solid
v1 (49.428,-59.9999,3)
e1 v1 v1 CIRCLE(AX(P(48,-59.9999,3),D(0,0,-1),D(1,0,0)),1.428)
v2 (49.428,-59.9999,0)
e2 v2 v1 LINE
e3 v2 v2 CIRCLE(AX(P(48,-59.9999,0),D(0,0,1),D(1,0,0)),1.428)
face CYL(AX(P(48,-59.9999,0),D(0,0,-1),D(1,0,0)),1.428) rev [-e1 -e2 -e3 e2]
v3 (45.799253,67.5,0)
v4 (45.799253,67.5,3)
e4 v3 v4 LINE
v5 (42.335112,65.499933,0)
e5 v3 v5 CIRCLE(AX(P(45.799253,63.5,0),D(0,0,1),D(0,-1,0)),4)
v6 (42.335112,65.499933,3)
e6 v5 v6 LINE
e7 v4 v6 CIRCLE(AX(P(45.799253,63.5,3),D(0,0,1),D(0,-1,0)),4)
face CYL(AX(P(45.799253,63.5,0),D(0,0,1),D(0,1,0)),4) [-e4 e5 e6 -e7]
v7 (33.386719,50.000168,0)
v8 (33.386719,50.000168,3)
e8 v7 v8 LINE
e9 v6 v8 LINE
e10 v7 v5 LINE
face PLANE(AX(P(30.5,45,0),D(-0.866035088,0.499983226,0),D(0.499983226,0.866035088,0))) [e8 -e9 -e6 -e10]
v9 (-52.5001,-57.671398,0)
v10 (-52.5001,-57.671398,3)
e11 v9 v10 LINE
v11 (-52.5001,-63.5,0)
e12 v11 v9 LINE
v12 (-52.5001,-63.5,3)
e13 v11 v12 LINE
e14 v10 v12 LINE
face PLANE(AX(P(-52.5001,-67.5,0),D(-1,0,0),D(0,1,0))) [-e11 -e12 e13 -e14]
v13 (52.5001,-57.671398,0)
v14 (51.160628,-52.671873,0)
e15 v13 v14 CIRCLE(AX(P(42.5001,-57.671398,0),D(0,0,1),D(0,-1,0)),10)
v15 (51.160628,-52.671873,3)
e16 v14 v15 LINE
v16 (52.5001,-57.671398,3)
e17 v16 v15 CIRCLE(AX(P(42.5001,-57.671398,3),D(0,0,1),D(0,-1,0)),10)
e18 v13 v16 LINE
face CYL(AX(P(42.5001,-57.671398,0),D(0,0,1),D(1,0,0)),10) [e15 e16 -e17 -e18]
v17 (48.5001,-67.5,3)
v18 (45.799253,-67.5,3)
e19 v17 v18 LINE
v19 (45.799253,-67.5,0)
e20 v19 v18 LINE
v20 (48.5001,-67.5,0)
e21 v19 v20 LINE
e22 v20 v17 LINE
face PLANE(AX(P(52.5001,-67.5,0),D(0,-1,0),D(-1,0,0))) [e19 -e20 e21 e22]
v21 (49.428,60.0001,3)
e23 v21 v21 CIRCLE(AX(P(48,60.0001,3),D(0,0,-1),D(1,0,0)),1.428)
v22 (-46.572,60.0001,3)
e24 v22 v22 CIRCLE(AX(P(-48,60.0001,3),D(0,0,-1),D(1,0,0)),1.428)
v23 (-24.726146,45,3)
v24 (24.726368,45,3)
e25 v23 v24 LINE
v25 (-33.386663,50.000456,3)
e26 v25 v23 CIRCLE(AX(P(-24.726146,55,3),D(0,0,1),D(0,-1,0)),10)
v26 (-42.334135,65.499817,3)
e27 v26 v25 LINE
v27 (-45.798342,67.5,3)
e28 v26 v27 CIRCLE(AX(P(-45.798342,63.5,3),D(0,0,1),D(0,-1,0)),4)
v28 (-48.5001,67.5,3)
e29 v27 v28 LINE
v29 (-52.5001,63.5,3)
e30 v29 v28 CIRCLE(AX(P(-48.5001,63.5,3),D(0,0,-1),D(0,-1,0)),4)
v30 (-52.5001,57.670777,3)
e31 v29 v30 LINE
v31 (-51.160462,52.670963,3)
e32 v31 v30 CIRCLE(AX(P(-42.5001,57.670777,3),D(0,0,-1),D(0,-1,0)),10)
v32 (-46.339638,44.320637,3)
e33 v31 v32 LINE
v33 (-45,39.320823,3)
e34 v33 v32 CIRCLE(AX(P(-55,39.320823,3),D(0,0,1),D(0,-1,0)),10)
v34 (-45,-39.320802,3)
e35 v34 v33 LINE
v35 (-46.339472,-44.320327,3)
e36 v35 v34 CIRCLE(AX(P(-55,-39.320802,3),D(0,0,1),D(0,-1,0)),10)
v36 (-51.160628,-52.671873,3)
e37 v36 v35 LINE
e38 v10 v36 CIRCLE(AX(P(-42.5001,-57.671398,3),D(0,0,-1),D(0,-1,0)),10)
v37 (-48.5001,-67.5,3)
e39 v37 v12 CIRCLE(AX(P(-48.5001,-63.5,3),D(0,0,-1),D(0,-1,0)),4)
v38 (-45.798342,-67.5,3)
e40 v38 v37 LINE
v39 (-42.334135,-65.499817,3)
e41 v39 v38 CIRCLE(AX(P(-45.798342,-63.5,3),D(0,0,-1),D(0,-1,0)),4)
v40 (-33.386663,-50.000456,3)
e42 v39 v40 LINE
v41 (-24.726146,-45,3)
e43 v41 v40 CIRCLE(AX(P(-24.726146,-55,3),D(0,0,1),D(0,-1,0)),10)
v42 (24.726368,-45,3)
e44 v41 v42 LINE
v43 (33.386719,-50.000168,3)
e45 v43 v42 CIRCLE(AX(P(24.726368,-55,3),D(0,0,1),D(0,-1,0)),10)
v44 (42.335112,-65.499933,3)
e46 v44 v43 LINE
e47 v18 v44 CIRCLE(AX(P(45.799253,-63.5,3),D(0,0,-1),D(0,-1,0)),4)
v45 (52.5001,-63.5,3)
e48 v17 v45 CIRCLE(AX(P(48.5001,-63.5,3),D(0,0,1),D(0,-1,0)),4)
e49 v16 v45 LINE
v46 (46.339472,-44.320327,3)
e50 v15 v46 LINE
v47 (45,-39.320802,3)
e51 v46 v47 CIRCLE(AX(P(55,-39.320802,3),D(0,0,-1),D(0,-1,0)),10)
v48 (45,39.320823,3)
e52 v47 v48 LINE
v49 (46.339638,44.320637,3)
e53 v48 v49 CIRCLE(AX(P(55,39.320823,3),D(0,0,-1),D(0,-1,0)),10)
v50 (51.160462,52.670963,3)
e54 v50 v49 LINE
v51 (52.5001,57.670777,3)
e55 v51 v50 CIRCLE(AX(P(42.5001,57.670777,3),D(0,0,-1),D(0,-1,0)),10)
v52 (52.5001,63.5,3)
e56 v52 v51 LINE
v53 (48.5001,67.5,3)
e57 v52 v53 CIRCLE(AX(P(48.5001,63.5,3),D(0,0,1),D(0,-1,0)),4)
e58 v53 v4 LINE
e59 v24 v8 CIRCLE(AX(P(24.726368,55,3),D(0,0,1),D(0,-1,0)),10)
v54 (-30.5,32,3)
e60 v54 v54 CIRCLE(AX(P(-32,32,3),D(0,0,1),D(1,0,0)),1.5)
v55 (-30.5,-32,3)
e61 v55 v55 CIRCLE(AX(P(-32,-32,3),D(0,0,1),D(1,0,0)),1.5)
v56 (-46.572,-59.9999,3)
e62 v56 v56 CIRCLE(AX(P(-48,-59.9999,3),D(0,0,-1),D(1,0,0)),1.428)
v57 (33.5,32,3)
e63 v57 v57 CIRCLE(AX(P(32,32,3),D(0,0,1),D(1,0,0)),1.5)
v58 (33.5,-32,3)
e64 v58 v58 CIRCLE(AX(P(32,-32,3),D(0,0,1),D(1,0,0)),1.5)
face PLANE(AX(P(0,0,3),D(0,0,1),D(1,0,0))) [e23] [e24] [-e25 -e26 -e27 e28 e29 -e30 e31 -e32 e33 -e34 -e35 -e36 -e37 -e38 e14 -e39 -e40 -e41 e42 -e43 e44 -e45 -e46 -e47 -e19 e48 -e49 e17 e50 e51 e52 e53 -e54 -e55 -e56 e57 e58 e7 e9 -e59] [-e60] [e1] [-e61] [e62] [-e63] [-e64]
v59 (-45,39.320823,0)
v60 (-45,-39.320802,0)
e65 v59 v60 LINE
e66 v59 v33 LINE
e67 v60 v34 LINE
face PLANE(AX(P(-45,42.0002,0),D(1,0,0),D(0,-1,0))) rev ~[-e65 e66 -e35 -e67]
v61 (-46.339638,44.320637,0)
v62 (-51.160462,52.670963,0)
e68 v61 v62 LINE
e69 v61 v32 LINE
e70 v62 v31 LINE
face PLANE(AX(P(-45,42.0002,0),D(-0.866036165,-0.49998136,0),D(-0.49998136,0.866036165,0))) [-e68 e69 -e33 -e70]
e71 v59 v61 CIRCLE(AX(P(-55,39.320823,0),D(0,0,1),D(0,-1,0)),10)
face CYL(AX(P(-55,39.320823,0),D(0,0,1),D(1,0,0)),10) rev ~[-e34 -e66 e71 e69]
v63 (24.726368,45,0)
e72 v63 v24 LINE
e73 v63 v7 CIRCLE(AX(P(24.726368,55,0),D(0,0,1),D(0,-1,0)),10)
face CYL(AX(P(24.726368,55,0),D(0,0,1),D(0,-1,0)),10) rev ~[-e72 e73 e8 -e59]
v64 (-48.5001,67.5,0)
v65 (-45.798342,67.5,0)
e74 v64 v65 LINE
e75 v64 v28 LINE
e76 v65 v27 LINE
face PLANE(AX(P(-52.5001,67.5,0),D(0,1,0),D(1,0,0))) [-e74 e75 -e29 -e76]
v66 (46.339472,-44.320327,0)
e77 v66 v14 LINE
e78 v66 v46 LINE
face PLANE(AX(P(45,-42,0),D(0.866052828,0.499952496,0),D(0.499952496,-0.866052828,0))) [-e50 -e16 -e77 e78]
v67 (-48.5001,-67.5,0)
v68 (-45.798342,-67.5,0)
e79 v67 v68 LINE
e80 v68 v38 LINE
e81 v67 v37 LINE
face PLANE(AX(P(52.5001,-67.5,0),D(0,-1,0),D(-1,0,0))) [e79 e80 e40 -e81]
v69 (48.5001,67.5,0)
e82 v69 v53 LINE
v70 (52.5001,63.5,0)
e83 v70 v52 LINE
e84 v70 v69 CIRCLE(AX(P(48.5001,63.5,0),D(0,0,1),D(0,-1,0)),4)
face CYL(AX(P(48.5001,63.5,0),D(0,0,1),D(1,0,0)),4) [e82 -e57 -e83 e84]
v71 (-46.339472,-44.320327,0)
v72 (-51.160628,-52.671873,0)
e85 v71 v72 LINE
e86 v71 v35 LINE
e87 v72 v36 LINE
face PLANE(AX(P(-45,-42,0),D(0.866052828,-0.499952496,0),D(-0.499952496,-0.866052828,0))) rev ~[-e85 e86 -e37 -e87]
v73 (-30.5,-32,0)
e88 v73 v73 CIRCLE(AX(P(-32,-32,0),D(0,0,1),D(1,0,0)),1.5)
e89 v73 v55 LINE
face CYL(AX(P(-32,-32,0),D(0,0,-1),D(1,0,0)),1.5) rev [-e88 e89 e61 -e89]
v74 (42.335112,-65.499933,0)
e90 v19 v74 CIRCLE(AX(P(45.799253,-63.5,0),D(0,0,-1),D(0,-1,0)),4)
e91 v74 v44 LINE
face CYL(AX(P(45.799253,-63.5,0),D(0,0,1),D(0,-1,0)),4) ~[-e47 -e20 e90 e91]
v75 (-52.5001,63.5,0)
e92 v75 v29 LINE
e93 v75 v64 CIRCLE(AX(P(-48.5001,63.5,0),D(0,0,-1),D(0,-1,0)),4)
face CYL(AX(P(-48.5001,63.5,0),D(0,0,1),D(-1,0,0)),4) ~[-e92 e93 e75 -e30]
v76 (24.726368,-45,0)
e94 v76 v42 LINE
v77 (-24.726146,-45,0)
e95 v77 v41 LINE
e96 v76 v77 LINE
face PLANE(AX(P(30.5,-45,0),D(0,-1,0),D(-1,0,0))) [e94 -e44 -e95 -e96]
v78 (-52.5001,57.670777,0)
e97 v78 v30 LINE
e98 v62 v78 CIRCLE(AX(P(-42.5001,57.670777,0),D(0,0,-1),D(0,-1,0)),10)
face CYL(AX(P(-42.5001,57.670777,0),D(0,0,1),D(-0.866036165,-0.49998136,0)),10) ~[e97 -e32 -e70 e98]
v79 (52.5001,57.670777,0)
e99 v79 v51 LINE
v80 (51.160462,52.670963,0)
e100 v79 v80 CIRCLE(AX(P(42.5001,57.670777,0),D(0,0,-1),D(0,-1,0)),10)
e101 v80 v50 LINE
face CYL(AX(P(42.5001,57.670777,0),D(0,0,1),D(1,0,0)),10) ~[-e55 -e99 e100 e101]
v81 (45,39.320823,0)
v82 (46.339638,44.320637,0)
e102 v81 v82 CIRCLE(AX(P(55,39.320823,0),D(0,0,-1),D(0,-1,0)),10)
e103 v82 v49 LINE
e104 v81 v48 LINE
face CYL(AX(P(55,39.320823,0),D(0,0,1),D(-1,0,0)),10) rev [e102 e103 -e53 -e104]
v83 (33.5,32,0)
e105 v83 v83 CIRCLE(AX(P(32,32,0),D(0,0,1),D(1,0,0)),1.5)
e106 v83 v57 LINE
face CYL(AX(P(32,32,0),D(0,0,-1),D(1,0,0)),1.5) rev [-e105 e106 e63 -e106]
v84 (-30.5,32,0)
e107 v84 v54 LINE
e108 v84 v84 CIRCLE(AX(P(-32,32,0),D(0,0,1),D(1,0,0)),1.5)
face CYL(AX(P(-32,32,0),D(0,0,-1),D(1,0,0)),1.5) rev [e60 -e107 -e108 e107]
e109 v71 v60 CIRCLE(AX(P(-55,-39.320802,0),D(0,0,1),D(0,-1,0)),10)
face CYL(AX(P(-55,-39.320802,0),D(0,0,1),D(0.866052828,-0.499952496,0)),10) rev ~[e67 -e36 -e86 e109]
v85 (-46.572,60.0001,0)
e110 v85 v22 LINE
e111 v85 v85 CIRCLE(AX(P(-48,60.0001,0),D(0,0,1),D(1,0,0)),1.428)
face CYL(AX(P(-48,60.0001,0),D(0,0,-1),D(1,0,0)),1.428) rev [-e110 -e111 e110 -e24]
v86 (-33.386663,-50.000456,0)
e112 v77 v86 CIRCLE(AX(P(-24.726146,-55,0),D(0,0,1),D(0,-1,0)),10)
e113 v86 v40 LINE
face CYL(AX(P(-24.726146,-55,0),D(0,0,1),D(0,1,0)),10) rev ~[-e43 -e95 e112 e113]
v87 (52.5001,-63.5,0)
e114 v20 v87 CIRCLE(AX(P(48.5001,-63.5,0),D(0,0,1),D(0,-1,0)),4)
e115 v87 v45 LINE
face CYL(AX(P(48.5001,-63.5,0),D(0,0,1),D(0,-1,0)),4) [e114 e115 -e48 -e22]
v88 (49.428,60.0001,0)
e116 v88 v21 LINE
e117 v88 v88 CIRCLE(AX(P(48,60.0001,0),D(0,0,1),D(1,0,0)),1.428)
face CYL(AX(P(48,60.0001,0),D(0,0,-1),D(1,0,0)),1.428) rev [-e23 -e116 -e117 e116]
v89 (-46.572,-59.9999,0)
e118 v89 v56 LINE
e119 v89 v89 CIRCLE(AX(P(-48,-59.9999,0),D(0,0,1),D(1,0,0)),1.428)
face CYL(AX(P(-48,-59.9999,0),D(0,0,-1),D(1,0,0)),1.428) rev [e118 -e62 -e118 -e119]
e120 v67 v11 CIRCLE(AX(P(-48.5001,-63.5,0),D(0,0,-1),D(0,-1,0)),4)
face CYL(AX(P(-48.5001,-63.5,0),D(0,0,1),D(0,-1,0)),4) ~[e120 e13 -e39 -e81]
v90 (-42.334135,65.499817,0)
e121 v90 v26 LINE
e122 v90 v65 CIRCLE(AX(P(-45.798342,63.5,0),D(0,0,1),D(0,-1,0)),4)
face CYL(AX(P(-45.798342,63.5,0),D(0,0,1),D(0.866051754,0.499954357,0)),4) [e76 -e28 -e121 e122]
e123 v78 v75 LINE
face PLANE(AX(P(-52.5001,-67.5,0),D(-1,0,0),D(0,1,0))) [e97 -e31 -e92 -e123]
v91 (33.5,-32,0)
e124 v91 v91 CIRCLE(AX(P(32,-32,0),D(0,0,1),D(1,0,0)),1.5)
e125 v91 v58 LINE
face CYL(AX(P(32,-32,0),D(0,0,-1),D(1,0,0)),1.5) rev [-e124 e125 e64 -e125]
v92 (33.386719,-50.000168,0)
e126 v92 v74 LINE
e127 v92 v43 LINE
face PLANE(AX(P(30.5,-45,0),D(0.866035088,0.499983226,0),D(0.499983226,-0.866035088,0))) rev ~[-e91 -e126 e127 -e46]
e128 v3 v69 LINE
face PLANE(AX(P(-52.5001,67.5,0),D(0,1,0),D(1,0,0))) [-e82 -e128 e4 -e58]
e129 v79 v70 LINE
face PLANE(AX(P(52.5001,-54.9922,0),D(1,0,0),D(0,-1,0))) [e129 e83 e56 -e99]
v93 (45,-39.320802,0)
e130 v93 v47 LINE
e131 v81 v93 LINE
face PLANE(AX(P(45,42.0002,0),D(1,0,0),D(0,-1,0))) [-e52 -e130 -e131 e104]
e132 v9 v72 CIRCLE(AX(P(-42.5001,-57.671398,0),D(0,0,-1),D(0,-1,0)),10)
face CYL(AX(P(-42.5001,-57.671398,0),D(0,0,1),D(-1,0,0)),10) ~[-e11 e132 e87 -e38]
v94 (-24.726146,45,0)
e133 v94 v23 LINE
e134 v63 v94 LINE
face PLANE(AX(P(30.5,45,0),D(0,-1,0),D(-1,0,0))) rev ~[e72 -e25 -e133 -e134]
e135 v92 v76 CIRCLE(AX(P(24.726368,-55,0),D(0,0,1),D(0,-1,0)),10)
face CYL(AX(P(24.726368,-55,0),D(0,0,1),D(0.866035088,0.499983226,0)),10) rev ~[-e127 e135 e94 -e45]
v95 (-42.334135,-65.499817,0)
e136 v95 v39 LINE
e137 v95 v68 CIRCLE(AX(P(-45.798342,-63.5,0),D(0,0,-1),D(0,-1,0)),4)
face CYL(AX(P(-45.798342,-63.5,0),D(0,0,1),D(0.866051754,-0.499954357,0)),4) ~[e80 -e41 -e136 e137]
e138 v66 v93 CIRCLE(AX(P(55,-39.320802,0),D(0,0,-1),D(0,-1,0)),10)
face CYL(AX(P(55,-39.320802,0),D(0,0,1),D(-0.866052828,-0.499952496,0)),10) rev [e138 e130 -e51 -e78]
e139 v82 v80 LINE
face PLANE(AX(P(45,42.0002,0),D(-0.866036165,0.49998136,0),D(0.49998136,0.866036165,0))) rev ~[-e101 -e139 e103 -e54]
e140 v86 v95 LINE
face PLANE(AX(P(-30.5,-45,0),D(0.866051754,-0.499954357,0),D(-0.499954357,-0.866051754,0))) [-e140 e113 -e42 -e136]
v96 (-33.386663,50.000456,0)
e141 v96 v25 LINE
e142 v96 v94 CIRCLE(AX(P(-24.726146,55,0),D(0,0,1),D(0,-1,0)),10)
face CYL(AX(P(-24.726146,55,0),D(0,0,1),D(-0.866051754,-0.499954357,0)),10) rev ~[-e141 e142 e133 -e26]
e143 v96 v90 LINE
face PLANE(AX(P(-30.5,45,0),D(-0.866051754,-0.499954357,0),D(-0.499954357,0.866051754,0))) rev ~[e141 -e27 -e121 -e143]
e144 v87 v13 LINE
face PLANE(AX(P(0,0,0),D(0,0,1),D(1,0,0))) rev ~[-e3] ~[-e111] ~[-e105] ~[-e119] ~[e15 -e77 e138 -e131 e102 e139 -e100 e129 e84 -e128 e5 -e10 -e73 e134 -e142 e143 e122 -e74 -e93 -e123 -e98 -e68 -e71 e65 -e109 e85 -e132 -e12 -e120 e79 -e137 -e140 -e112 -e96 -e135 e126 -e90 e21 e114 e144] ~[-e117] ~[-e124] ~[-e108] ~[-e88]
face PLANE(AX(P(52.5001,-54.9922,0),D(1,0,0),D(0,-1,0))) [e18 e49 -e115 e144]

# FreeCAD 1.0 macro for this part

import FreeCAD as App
import Part
import Sketcher
Q = App.Units.Quantity


def edges_at(feature, points):
    """Names of the edges that pass closest to the given points."""
    edges = feature.Shape.Edges
    near = lambda p: min(range(len(edges)), key=lambda i: edges[i].distToShape(Part.Vertex(*p))[0])
    return sorted({f"Edge{near(p) + 1}" for p in points})


def add_polygon(sketch, points):
    """Adds a closed chain of lines whose ends are joined by coincident constraints."""
    first, n = sketch.GeometryCount, len(points)
    for a, b in zip(points, points[1:] + points[:1]):
        sketch.addGeometry(Part.LineSegment(App.Vector(*a, 0), App.Vector(*b, 0)), False)
    for i in range(n):
        sketch.addConstraint(Sketcher.Constraint("Coincident", first + i, 2, first + (i + 1) % n, 1))

doc = App.newDocument("Part")
body = doc.addObject("PartDesign::Body", "Body")

# Sketch on XY plane
sketch1 = body.newObject("Sketcher::SketchObject", "Sketch")
sketch1.AttachmentSupport = (doc.getObject("XY_Plane"), [""])
sketch1.MapMode = "FlatFace"
add_polygon(sketch1, [(52.5, -67.5), (52.5, 67.5), (-52.5, 67.5), (-52.5, -67.5)])  # lines 0-3
sketch1.addGeometry(Part.Circle(App.Vector(-32, -32, 0), App.Vector(0, 0, 1), 1.5), False)  # 4
sketch1.addGeometry(Part.Circle(App.Vector(32, -32, 0), App.Vector(0, 0, 1), 1.5), False)  # 5
sketch1.addGeometry(Part.Circle(App.Vector(-32, 32, 0), App.Vector(0, 0, 1), 1.5), False)  # 6
sketch1.addGeometry(Part.Circle(App.Vector(32, 32, 0), App.Vector(0, 0, 1), 1.5), False)  # 7
sketch1.addConstraint([
    Sketcher.Constraint("Vertical", 0),
    Sketcher.Constraint("Horizontal", 1),
    Sketcher.Constraint("Vertical", 2),
    Sketcher.Constraint("Horizontal", 3),
    Sketcher.Constraint("Equal", 4, 5),
    Sketcher.Constraint("Equal", 5, 6),
    Sketcher.Constraint("Equal", 6, 7),
    Sketcher.Constraint("Symmetric", 5, 3, 6, 3, -1, 1),
    Sketcher.Constraint("Symmetric", 4, 3, 7, 3, -1, 1),
    Sketcher.Constraint("Symmetric", 0, 2, 2, 2, -1, 1),
    Sketcher.Constraint("Symmetric", 4, 3, 5, 3, -2),
    Sketcher.Constraint("Diameter", 4, 3.0),
    Sketcher.Constraint("DistanceY", 0, 1, 0, 2, 135.0),
    Sketcher.Constraint("DistanceX", 4, 3, -1, 1, 32.0),
    Sketcher.Constraint("DistanceY", 4, 3, -1, 1, 32.0),
    Sketcher.Constraint("DistanceX", -1, 1, 0, 2, 52.5),
])
pad1 = body.newObject("PartDesign::Pad", "Pad")
pad1.Profile = sketch1
pad1.Length = 3
doc.recompute()

fillet = body.newObject("PartDesign::Fillet", "Fillet")
fillet.Base = (pad1, edges_at(pad1, [
    (-52.5, 67.5, 1.5),
    (52.5, 67.5, 1.5),
    (52.5, -67.5, 1.5),
    (-52.5, -67.5, 1.5),
]))
fillet.Radius = 4

# Sketch on XY plane
sketch2 = body.newObject("Sketcher::SketchObject", "Sketch001")
sketch2.AttachmentSupport = (doc.getObject("XY_Plane"), [""])
sketch2.MapMode = "FlatFace"
add_polygon(sketch2, [(-43, -68), (43, -68), (30, -45), (-30, -45)])  # lines 0-3
add_polygon(sketch2, [(45, -42), (53, -55), (53, 55), (45, 42)])  # lines 4-7
add_polygon(sketch2, [(-53, 55), (-53, -55), (-45, -42), (-45, 42)])  # lines 8-11
add_polygon(sketch2, [(30, 45), (43, 68), (-43, 68), (-30, 45)])  # lines 12-15
sketch2.addConstraint([
    Sketcher.Constraint("Horizontal", 0),
    Sketcher.Constraint("Horizontal", 2),
    Sketcher.Constraint("Vertical", 5),
    Sketcher.Constraint("Vertical", 7),
    Sketcher.Constraint("Vertical", 8),
    Sketcher.Constraint("Vertical", 10),
    Sketcher.Constraint("Horizontal", 13),
    Sketcher.Constraint("Horizontal", 15),
    Sketcher.Constraint("Symmetric", 6, 2, 9, 2, -1, 1),
    Sketcher.Constraint("Symmetric", 1, 2, 14, 2, -1, 1),
    Sketcher.Constraint("Symmetric", 4, 2, 8, 2, -2),
    Sketcher.Constraint("Symmetric", 0, 2, 12, 2, -1),
    Sketcher.Constraint("Parallel", 1, 4),
    Sketcher.Constraint("Parallel", 3, 6),
    Sketcher.Constraint("Parallel", 6, 9),
    Sketcher.Constraint("Parallel", 4, 11),
    Sketcher.Constraint("Parallel", 9, 12),
    Sketcher.Constraint("Parallel", 11, 14),
    Sketcher.Constraint("Horizontal", 7, 2, 9, 2),
    Sketcher.Constraint("Horizontal", 6, 2, 10, 2),
    Sketcher.Constraint("Vertical", 3, 2, 13, 2),
    Sketcher.Constraint("DistanceX", 2, 2, 2, 1, 61.0),
    Sketcher.Constraint("Angle", 1, Q("119.999 deg")),
    Sketcher.Constraint("DistanceY", 1, 2, -1, 1, 45.0),
    Sketcher.Constraint("DistanceX", -1, 1, 6, 2, 45.0),
    Sketcher.Constraint("DistanceY", 7, 2, -1, 1, 42.0),
    Sketcher.Constraint("DistanceX", 1, 2, 4, 2, 22.0),
    Sketcher.Constraint("DistanceY", 0, 2, -1, 1, 67.5),
])
pocket1 = body.newObject("PartDesign::Pocket", "Pocket")
pocket1.Profile = sketch2
pocket1.Length = 10
pocket1.Reversed = True
doc.recompute()

fillet2 = body.newObject("PartDesign::Fillet", "Fillet001")
fillet2.Base = (pocket1, edges_at(pocket1, [
    (30.5, 45, 1.5),
    (-30.5, 45, 1.5),
    (30.5, -45, 1.5),
    (-30.5, -45, 1.5),
    (-52.5, 54.991, 1.5),
    (52.5, -54.992, 1.5),
    (-52.5, -54.992, 1.5),
    (52.5, 54.991, 1.5),
]))
fillet2.Radius = 10
doc.recompute()

fillet3 = body.newObject("PartDesign::Fillet", "Fillet002")
fillet3.Base = (fillet2, edges_at(fillet2, [
    (45, 42, 1.5),
    (45, -42, 1.5),
    (-45, -42, 1.5),
    (-45, 42, 1.5),
]))
fillet3.Radius = 10
doc.recompute()

fillet4 = body.newObject("PartDesign::Fillet", "Fillet003")
fillet4.Base = (fillet3, edges_at(fillet3, [
    (43.49, 67.5, 1.5),
    (-43.489, 67.5, 1.5),
    (43.49, -67.5, 1.5),
    (-43.489, -67.5, 1.5),
]))
fillet4.Radius = 4

# Sketch on XY plane
sketch3 = body.newObject("Sketcher::SketchObject", "Sketch002")
sketch3.AttachmentSupport = (doc.getObject("XY_Plane"), [""])
sketch3.MapMode = "FlatFace"
sketch3.addGeometry([
    Part.Circle(App.Vector(48, 60, 0), App.Vector(0, 0, 1), 1.4),
    Part.Circle(App.Vector(-48, 60, 0), App.Vector(0, 0, 1), 1.4),
    Part.Circle(App.Vector(48, -60, 0), App.Vector(0, 0, 1), 1.4),
    Part.Circle(App.Vector(-48, -60, 0), App.Vector(0, 0, 1), 1.4),
], False)
sketch3.addConstraint([
    Sketcher.Constraint("Equal", 0, 1),
    Sketcher.Constraint("Equal", 1, 2),
    Sketcher.Constraint("Equal", 2, 3),
    Sketcher.Constraint("Symmetric", 1, 3, 2, 3, -1, 1),
    Sketcher.Constraint("Symmetric", 0, 3, 3, 3, -1, 1),
    Sketcher.Constraint("Symmetric", 0, 3, 1, 3, -2),
    Sketcher.Constraint("Diameter", 0, 2.856),
    Sketcher.Constraint("DistanceX", -1, 1, 0, 3, 48.0),
    Sketcher.Constraint("DistanceY", -1, 1, 0, 3, 60.0),
])
pocket2 = body.newObject("PartDesign::Pocket", "Pocket001")
pocket2.Profile = sketch3
pocket2.Length = 10
pocket2.Reversed = True

doc.recompute()
